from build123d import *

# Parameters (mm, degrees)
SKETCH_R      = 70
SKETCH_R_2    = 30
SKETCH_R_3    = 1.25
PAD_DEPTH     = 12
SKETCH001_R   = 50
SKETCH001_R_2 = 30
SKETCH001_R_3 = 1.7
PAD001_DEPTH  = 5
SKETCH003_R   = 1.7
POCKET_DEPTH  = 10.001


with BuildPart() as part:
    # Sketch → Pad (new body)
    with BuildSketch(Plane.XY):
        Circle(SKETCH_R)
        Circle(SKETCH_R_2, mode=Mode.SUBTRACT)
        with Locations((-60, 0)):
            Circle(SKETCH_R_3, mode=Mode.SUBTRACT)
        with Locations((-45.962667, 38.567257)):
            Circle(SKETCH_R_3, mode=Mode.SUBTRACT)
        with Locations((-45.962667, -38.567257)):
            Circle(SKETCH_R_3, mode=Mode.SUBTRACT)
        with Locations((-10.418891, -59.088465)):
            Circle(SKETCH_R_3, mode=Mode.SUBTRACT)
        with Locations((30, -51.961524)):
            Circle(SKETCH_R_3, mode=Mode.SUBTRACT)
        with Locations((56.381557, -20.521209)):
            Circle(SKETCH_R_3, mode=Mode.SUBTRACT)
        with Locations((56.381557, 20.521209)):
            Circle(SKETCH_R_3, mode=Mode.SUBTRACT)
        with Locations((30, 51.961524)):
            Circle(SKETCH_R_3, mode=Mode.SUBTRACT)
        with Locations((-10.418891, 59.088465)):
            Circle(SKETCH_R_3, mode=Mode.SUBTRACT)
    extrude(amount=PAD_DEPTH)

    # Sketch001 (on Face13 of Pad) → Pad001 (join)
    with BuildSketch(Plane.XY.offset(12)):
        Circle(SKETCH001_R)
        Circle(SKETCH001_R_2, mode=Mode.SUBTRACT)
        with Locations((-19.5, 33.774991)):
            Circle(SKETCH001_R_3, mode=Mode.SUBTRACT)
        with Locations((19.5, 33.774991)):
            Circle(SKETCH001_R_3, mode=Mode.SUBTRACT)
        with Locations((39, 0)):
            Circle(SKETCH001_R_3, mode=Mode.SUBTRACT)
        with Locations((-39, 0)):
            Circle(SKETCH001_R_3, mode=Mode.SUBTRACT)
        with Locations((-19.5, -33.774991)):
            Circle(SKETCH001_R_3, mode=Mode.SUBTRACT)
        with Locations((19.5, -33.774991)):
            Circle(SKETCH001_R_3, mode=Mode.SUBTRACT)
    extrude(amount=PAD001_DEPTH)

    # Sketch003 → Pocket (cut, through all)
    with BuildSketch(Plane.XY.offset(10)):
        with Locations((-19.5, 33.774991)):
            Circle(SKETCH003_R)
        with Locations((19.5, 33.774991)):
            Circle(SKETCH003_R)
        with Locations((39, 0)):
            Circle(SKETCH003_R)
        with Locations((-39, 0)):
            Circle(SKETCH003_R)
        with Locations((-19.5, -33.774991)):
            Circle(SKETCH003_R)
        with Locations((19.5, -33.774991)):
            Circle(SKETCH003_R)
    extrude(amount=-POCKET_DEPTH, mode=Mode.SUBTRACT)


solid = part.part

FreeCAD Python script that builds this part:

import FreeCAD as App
import Part
import Sketcher

doc = App.newDocument("Part")
body = doc.addObject("PartDesign::Body", "Body")

sketch1 = body.newObject("Sketcher::SketchObject", "Sketch")
sketch1.AttachmentSupport = (doc.getObject("XY_Plane"), [""])
sketch1.MapMode = "FlatFace"
sketch1.addGeometry([
    Part.Circle(App.Vector(0, 0, 0), App.Vector(0, 0, 1), 70),
    Part.Circle(App.Vector(-46, -38.6, 0), App.Vector(0, 0, 1), 1.2),
    Part.Circle(App.Vector(-10.4, -59.1, 0), App.Vector(0, 0, 1), 1.2),
    Part.Circle(App.Vector(-60, 0, 0), App.Vector(0, 0, 1), 1.2),
    Part.Circle(App.Vector(30, -52, 0), App.Vector(0, 0, 1), 1.2),
    Part.Circle(App.Vector(0, 0, 0), App.Vector(0, 0, 1), 30),
    Part.Circle(App.Vector(56.4, -20.5, 0), App.Vector(0, 0, 1), 1.2),
    Part.Circle(App.Vector(-46, 38.6, 0), App.Vector(0, 0, 1), 1.2),
    Part.Circle(App.Vector(-10.4, 59.1, 0), App.Vector(0, 0, 1), 1.2),
    Part.Circle(App.Vector(56.4, 20.5, 0), App.Vector(0, 0, 1), 1.2),
    Part.Circle(App.Vector(30, 52, 0), App.Vector(0, 0, 1), 1.2),
], False)
sketch1.addConstraint([
    Sketcher.Constraint("Coincident", 0, 3, -1, 1),
    Sketcher.Constraint("Coincident", 5, 3, -1, 1),
    Sketcher.Constraint("Equal", 1, 2),
    Sketcher.Constraint("Equal", 2, 3),
    Sketcher.Constraint("Equal", 3, 4),
    Sketcher.Constraint("Equal", 4, 6),
    Sketcher.Constraint("Equal", 6, 7),
    Sketcher.Constraint("Equal", 7, 8),
    Sketcher.Constraint("Equal", 8, 9),
    Sketcher.Constraint("Equal", 9, 10),
    Sketcher.Constraint("Symmetric", 1, 3, 7, 3, -1),
    Sketcher.Constraint("Symmetric", 2, 3, 8, 3, -1),
    Sketcher.Constraint("Symmetric", 6, 3, 9, 3, -1),
    Sketcher.Constraint("Symmetric", 4, 3, 10, 3, -1),
    Sketcher.Constraint("PointOnObject", 3, 3, -1),
    Sketcher.Constraint("Diameter", 0, 140.0),
    Sketcher.Constraint("Diameter", 5, 60.0),
    Sketcher.Constraint("Diameter", 1, 2.5),
    Sketcher.Constraint("DistanceX", 3, 3, -1, 1, 60.0),
    Sketcher.Constraint("DistanceX", -1, 1, 4, 3, 30.0),
    Sketcher.Constraint("DistanceX", 2, 3, -1, 1, 10.418891),
    Sketcher.Constraint("DistanceY", 6, 3, -1, 1, 20.521209),
    Sketcher.Constraint("DistanceY", 2, 3, 1, 3, 20.521208),
    Sketcher.Constraint("DistanceY", 2, 3, 4, 3, 7.126941),
    Sketcher.Constraint("DistanceX", 2, 3, 6, 3, 66.800448),
    Sketcher.Constraint("DistanceY", 2, 3, 7, 3, 97.655722),
    Sketcher.Constraint("DistanceX", 1, 3, -1, 1, 45.962667),
])
pad1 = body.newObject("PartDesign::Pad", "Pad")
pad1.Profile = sketch1
pad1.Length = 12

sketch2 = body.newObject("Sketcher::SketchObject", "Sketch001")
sketch2.AttachmentSupport = (doc.getObject("XY_Plane"), [""])
sketch2.MapMode = "FlatFace"
sketch2.AttachmentOffset = App.Placement(App.Vector(0, 0, 12), App.Rotation())
sketch2.addGeometry([
    Part.Circle(App.Vector(0, 0, 0), App.Vector(0, 0, 1), 50),
    Part.Circle(App.Vector(-19.5, -33.8, 0), App.Vector(0, 0, 1), 1.7),
    Part.Circle(App.Vector(19.5, -33.8, 0), App.Vector(0, 0, 1), 1.7),
    Part.Circle(App.Vector(-39, 0, 0), App.Vector(0, 0, 1), 1.7),
    Part.Circle(App.Vector(-19.5, 33.8, 0), App.Vector(0, 0, 1), 1.7),
    Part.Circle(App.Vector(0, 0, 0), App.Vector(0, 0, 1), 30),
    Part.Circle(App.Vector(39, 0, 0), App.Vector(0, 0, 1), 1.7),
    Part.Circle(App.Vector(19.5, 33.8, 0), App.Vector(0, 0, 1), 1.7),
], False)
sketch2.addConstraint([
    Sketcher.Constraint("Coincident", 0, 3, -1, 1),
    Sketcher.Constraint("Coincident", 5, 3, -1, 1),
    Sketcher.Constraint("Equal", 1, 2),
    Sketcher.Constraint("Equal", 2, 3),
    Sketcher.Constraint("Equal", 3, 4),
    Sketcher.Constraint("Equal", 4, 6),
    Sketcher.Constraint("Equal", 6, 7),
    Sketcher.Constraint("Symmetric", 2, 3, 4, 3, -1, 1),
    Sketcher.Constraint("Symmetric", 3, 3, 6, 3, -1, 1),
    Sketcher.Constraint("Symmetric", 1, 3, 7, 3, -1, 1),
    Sketcher.Constraint("Symmetric", 1, 3, 2, 3, -2),
    Sketcher.Constraint("PointOnObject", 3, 3, -1),
    Sketcher.Constraint("Diameter", 0, 100.0),
    Sketcher.Constraint("Diameter", 5, 60.0),
    Sketcher.Constraint("Diameter", 1, 3.4),
    Sketcher.Constraint("DistanceX", 3, 3, -1, 1, 39.0),
    Sketcher.Constraint("DistanceX", 1, 3, 2, 3, 39.0),
    Sketcher.Constraint("DistanceY", 1, 3, -1, 1, 33.774991),
])
pad2 = body.newObject("PartDesign::Pad", "Pad001")
pad2.Profile = sketch2
pad2.Length = 5

sketch3 = body.newObject("Sketcher::SketchObject", "Sketch002")
sketch3.AttachmentSupport = (doc.getObject("XY_Plane"), [""])
sketch3.MapMode = "FlatFace"
sketch3.AttachmentOffset = App.Placement(App.Vector(0, 0, 10), App.Rotation())
sketch3.addGeometry([
    Part.Circle(App.Vector(-19.5, 33.8, 0), App.Vector(0, 0, 1), 1.7),
    Part.Circle(App.Vector(19.5, 33.8, 0), App.Vector(0, 0, 1), 1.7),
    Part.Circle(App.Vector(39, 0, 0), App.Vector(0, 0, 1), 1.7),
    Part.Circle(App.Vector(-39, 0, 0), App.Vector(0, 0, 1), 1.7),
    Part.Circle(App.Vector(-19.5, -33.8, 0), App.Vector(0, 0, 1), 1.7),
    Part.Circle(App.Vector(19.5, -33.8, 0), App.Vector(0, 0, 1), 1.7),
], False)
sketch3.addConstraint([
    Sketcher.Constraint("Equal", 0, 1),
    Sketcher.Constraint("Equal", 1, 2),
    Sketcher.Constraint("Equal", 2, 3),
    Sketcher.Constraint("Equal", 3, 4),
    Sketcher.Constraint("Equal", 4, 5),
    Sketcher.Constraint("Symmetric", 2, 3, 3, 3, -1, 1),
    Sketcher.Constraint("Symmetric", 1, 3, 4, 3, -1, 1),
    Sketcher.Constraint("Symmetric", 0, 3, 5, 3, -1, 1),
    Sketcher.Constraint("Symmetric", 0, 3, 1, 3, -2),
    Sketcher.Constraint("PointOnObject", 2, 3, -1),
    Sketcher.Constraint("Diameter", 0, 3.4),
    Sketcher.Constraint("DistanceX", -1, 1, 2, 3, 39.0),
    Sketcher.Constraint("DistanceX", 0, 3, 1, 3, 39.0),
    Sketcher.Constraint("DistanceY", -1, 1, 0, 3, 33.774991),
])
pocket1 = body.newObject("PartDesign::Pocket", "Pocket")
pocket1.Profile = sketch3
pocket1.Type = "ThroughAll"

doc.recompute()
